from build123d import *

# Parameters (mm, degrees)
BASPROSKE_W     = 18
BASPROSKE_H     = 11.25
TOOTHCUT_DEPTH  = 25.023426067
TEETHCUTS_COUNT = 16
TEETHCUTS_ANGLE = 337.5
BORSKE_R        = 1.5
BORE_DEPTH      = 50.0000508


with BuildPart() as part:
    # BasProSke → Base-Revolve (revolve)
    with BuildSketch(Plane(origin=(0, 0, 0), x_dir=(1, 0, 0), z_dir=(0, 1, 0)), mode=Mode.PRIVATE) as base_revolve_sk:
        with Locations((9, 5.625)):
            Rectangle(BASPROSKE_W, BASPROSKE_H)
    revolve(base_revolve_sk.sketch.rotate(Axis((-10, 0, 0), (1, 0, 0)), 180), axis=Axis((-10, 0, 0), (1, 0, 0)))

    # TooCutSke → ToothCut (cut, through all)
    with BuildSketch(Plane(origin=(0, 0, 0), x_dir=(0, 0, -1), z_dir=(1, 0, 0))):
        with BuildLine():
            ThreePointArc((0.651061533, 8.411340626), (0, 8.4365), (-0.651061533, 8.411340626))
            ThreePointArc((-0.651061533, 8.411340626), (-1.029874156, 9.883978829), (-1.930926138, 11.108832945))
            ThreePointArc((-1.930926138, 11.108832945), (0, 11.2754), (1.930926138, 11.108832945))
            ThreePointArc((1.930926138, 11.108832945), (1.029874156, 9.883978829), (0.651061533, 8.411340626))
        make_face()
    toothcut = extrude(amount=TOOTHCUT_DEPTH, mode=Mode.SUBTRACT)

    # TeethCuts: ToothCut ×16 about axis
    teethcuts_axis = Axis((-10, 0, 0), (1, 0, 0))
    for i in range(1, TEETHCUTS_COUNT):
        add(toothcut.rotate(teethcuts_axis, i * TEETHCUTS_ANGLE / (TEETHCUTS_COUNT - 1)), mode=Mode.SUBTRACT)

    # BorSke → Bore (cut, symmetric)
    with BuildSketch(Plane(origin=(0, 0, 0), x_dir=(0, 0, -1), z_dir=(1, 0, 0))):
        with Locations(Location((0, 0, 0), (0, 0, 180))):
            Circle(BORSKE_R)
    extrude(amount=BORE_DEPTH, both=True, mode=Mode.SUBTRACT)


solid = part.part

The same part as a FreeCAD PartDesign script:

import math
import FreeCAD as App
import Part
import Sketcher

doc = App.newDocument("Part")
params = doc.addObject("Spreadsheet::Sheet", "Params")
for row, (alias, value) in enumerate([
    ("sketch1_width", "18 mm"),
    ("sketch1_height", "11.25 mm"),
    ("revolution_angle", "360 deg"),
    ("sketch2_radius", "4 mm"),
    ("sketch3_diameter", "3 mm"),
    ("pocket2_length", "100.000102 mm"),
], start=1):
    params.set(f"A{row}", alias)
    params.set(f"B{row}", "=" + value)
    params.setAlias(f"B{row}", alias)

body = doc.addObject("PartDesign::Body", "Body")

# Sketch on XZ plane
sketch1 = body.newObject("Sketcher::SketchObject", "Sketch")
sketch1.AttachmentSupport = (doc.getObject("XZ_Plane"), [""])
sketch1.MapMode = "FlatFace"
sketch1.addGeometry([
    Part.LineSegment(App.Vector(0, -11, 0), App.Vector(0, 0, 0)),
    Part.LineSegment(App.Vector(0, 0, 0), App.Vector(18, 0, 0)),
    Part.LineSegment(App.Vector(18, 0, 0), App.Vector(18, -11, 0)),
    Part.LineSegment(App.Vector(18, -11, 0), App.Vector(0, -11, 0)),
], False)
sketch1.addConstraint([
    Sketcher.Constraint("Coincident", 0, 2, 1, 1),
    Sketcher.Constraint("Coincident", 1, 2, 2, 1),
    Sketcher.Constraint("Coincident", 2, 2, 3, 1),
    Sketcher.Constraint("Coincident", 3, 2, 0, 1),
    Sketcher.Constraint("Vertical", 0),
    Sketcher.Constraint("Horizontal", 1),
    Sketcher.Constraint("Vertical", 2),
    Sketcher.Constraint("Horizontal", 3),
    Sketcher.Constraint("Coincident", 0, 2, -1, 1),
    Sketcher.Constraint("DistanceX", 1, 1, 1, 2, 18.0),
    Sketcher.Constraint("DistanceY", 0, 1, 0, 2, 11.25),
])
sketch1.setExpression("Constraints[9]", "Params.sketch1_width")
sketch1.setExpression("Constraints[10]", "Params.sketch1_height")
revolution = body.newObject("PartDesign::Revolution", "Revolution")
revolution.Profile = sketch1
revolution.ReferenceAxis = (sketch1, ["H_Axis"])
revolution.setExpression("Angle", "Params.revolution_angle")

# Sketch on YZ plane
sketch2 = body.newObject("Sketcher::SketchObject", "Sketch001")
sketch2.AttachmentSupport = (doc.getObject("YZ_Plane"), [""])
sketch2.MapMode = "FlatFace"
sketch2.addGeometry([
    Part.ArcOfCircle(Part.Circle(App.Vector(0, 0, 0), App.Vector(0, 0, 1), 8.4), math.radians(-4.43), math.radians(4.43)),
    Part.ArcOfCircle(Part.Circle(App.Vector(8.2, -4.6, 0), App.Vector(0, 0, 1), 4), math.radians(43), math.radians(87)),
    Part.ArcOfCircle(Part.Circle(App.Vector(0, 0, 0), App.Vector(0, 0, 1), 11.3), math.radians(-9.86), math.radians(9.86)),
    Part.ArcOfCircle(Part.Circle(App.Vector(8.2, 4.6, 0), App.Vector(0, 0, 1), 4), math.radians(-87), math.radians(-43)),
], False)
sketch2.addConstraint([
    Sketcher.Constraint("Coincident", 0, 1, 1, 2),
    Sketcher.Constraint("Coincident", 1, 1, 2, 1),
    Sketcher.Constraint("Coincident", 2, 2, 3, 2),
    Sketcher.Constraint("Coincident", 3, 1, 0, 2),
    Sketcher.Constraint("Coincident", 0, 3, -1, 1),
    Sketcher.Constraint("Coincident", 2, 3, -1, 1),
    Sketcher.Constraint("Equal", 1, 3),
    Sketcher.Constraint("Symmetric", 1, 3, 3, 3, -1),
    Sketcher.Constraint("Radius", 1, 4.0),
    Sketcher.Constraint("Radius", 0, 8.4365),
    Sketcher.Constraint("Radius", 2, 11.2754),
    Sketcher.Constraint("DistanceX", -1, 1, 1, 3, 8.16933),
    Sketcher.Constraint("DistanceX", -1, 1, 0, 1, 8.411341),
])
sketch2.setExpression("Constraints[8]", "Params.sketch2_radius")
pocket1 = body.newObject("PartDesign::Pocket", "Pocket")
pocket1.Profile = sketch2
pocket1.Type = "ThroughAll"
pocket1.Reversed = True
doc.recompute()

polarpattern = body.newObject("PartDesign::PolarPattern", "PolarPattern")
polarpattern.Originals = [pocket1]
polarpattern.Axis = (doc.getObject("X_Axis"), [""])
polarpattern.Angle = 360
polarpattern.Occurrences = 16
body.Tip = polarpattern

# Sketch on YZ plane
sketch3 = body.newObject("Sketcher::SketchObject", "Sketch002")
sketch3.AttachmentSupport = (doc.getObject("YZ_Plane"), [""])
sketch3.MapMode = "FlatFace"
sketch3.addGeometry(Part.Circle(App.Vector(0, 0, 0), App.Vector(0, 0, 1), 1.5), False)
sketch3.addConstraint([
    Sketcher.Constraint("Coincident", 0, 3, -1, 1),
    Sketcher.Constraint("Diameter", 0, 3.0),
])
sketch3.setExpression("Constraints[1]", "Params.sketch3_diameter")
pocket2 = body.newObject("PartDesign::Pocket", "Pocket001")
pocket2.Profile = sketch3
pocket2.setExpression("Length", "Params.pocket2_length")
pocket2.Midplane = True

doc.recompute()
